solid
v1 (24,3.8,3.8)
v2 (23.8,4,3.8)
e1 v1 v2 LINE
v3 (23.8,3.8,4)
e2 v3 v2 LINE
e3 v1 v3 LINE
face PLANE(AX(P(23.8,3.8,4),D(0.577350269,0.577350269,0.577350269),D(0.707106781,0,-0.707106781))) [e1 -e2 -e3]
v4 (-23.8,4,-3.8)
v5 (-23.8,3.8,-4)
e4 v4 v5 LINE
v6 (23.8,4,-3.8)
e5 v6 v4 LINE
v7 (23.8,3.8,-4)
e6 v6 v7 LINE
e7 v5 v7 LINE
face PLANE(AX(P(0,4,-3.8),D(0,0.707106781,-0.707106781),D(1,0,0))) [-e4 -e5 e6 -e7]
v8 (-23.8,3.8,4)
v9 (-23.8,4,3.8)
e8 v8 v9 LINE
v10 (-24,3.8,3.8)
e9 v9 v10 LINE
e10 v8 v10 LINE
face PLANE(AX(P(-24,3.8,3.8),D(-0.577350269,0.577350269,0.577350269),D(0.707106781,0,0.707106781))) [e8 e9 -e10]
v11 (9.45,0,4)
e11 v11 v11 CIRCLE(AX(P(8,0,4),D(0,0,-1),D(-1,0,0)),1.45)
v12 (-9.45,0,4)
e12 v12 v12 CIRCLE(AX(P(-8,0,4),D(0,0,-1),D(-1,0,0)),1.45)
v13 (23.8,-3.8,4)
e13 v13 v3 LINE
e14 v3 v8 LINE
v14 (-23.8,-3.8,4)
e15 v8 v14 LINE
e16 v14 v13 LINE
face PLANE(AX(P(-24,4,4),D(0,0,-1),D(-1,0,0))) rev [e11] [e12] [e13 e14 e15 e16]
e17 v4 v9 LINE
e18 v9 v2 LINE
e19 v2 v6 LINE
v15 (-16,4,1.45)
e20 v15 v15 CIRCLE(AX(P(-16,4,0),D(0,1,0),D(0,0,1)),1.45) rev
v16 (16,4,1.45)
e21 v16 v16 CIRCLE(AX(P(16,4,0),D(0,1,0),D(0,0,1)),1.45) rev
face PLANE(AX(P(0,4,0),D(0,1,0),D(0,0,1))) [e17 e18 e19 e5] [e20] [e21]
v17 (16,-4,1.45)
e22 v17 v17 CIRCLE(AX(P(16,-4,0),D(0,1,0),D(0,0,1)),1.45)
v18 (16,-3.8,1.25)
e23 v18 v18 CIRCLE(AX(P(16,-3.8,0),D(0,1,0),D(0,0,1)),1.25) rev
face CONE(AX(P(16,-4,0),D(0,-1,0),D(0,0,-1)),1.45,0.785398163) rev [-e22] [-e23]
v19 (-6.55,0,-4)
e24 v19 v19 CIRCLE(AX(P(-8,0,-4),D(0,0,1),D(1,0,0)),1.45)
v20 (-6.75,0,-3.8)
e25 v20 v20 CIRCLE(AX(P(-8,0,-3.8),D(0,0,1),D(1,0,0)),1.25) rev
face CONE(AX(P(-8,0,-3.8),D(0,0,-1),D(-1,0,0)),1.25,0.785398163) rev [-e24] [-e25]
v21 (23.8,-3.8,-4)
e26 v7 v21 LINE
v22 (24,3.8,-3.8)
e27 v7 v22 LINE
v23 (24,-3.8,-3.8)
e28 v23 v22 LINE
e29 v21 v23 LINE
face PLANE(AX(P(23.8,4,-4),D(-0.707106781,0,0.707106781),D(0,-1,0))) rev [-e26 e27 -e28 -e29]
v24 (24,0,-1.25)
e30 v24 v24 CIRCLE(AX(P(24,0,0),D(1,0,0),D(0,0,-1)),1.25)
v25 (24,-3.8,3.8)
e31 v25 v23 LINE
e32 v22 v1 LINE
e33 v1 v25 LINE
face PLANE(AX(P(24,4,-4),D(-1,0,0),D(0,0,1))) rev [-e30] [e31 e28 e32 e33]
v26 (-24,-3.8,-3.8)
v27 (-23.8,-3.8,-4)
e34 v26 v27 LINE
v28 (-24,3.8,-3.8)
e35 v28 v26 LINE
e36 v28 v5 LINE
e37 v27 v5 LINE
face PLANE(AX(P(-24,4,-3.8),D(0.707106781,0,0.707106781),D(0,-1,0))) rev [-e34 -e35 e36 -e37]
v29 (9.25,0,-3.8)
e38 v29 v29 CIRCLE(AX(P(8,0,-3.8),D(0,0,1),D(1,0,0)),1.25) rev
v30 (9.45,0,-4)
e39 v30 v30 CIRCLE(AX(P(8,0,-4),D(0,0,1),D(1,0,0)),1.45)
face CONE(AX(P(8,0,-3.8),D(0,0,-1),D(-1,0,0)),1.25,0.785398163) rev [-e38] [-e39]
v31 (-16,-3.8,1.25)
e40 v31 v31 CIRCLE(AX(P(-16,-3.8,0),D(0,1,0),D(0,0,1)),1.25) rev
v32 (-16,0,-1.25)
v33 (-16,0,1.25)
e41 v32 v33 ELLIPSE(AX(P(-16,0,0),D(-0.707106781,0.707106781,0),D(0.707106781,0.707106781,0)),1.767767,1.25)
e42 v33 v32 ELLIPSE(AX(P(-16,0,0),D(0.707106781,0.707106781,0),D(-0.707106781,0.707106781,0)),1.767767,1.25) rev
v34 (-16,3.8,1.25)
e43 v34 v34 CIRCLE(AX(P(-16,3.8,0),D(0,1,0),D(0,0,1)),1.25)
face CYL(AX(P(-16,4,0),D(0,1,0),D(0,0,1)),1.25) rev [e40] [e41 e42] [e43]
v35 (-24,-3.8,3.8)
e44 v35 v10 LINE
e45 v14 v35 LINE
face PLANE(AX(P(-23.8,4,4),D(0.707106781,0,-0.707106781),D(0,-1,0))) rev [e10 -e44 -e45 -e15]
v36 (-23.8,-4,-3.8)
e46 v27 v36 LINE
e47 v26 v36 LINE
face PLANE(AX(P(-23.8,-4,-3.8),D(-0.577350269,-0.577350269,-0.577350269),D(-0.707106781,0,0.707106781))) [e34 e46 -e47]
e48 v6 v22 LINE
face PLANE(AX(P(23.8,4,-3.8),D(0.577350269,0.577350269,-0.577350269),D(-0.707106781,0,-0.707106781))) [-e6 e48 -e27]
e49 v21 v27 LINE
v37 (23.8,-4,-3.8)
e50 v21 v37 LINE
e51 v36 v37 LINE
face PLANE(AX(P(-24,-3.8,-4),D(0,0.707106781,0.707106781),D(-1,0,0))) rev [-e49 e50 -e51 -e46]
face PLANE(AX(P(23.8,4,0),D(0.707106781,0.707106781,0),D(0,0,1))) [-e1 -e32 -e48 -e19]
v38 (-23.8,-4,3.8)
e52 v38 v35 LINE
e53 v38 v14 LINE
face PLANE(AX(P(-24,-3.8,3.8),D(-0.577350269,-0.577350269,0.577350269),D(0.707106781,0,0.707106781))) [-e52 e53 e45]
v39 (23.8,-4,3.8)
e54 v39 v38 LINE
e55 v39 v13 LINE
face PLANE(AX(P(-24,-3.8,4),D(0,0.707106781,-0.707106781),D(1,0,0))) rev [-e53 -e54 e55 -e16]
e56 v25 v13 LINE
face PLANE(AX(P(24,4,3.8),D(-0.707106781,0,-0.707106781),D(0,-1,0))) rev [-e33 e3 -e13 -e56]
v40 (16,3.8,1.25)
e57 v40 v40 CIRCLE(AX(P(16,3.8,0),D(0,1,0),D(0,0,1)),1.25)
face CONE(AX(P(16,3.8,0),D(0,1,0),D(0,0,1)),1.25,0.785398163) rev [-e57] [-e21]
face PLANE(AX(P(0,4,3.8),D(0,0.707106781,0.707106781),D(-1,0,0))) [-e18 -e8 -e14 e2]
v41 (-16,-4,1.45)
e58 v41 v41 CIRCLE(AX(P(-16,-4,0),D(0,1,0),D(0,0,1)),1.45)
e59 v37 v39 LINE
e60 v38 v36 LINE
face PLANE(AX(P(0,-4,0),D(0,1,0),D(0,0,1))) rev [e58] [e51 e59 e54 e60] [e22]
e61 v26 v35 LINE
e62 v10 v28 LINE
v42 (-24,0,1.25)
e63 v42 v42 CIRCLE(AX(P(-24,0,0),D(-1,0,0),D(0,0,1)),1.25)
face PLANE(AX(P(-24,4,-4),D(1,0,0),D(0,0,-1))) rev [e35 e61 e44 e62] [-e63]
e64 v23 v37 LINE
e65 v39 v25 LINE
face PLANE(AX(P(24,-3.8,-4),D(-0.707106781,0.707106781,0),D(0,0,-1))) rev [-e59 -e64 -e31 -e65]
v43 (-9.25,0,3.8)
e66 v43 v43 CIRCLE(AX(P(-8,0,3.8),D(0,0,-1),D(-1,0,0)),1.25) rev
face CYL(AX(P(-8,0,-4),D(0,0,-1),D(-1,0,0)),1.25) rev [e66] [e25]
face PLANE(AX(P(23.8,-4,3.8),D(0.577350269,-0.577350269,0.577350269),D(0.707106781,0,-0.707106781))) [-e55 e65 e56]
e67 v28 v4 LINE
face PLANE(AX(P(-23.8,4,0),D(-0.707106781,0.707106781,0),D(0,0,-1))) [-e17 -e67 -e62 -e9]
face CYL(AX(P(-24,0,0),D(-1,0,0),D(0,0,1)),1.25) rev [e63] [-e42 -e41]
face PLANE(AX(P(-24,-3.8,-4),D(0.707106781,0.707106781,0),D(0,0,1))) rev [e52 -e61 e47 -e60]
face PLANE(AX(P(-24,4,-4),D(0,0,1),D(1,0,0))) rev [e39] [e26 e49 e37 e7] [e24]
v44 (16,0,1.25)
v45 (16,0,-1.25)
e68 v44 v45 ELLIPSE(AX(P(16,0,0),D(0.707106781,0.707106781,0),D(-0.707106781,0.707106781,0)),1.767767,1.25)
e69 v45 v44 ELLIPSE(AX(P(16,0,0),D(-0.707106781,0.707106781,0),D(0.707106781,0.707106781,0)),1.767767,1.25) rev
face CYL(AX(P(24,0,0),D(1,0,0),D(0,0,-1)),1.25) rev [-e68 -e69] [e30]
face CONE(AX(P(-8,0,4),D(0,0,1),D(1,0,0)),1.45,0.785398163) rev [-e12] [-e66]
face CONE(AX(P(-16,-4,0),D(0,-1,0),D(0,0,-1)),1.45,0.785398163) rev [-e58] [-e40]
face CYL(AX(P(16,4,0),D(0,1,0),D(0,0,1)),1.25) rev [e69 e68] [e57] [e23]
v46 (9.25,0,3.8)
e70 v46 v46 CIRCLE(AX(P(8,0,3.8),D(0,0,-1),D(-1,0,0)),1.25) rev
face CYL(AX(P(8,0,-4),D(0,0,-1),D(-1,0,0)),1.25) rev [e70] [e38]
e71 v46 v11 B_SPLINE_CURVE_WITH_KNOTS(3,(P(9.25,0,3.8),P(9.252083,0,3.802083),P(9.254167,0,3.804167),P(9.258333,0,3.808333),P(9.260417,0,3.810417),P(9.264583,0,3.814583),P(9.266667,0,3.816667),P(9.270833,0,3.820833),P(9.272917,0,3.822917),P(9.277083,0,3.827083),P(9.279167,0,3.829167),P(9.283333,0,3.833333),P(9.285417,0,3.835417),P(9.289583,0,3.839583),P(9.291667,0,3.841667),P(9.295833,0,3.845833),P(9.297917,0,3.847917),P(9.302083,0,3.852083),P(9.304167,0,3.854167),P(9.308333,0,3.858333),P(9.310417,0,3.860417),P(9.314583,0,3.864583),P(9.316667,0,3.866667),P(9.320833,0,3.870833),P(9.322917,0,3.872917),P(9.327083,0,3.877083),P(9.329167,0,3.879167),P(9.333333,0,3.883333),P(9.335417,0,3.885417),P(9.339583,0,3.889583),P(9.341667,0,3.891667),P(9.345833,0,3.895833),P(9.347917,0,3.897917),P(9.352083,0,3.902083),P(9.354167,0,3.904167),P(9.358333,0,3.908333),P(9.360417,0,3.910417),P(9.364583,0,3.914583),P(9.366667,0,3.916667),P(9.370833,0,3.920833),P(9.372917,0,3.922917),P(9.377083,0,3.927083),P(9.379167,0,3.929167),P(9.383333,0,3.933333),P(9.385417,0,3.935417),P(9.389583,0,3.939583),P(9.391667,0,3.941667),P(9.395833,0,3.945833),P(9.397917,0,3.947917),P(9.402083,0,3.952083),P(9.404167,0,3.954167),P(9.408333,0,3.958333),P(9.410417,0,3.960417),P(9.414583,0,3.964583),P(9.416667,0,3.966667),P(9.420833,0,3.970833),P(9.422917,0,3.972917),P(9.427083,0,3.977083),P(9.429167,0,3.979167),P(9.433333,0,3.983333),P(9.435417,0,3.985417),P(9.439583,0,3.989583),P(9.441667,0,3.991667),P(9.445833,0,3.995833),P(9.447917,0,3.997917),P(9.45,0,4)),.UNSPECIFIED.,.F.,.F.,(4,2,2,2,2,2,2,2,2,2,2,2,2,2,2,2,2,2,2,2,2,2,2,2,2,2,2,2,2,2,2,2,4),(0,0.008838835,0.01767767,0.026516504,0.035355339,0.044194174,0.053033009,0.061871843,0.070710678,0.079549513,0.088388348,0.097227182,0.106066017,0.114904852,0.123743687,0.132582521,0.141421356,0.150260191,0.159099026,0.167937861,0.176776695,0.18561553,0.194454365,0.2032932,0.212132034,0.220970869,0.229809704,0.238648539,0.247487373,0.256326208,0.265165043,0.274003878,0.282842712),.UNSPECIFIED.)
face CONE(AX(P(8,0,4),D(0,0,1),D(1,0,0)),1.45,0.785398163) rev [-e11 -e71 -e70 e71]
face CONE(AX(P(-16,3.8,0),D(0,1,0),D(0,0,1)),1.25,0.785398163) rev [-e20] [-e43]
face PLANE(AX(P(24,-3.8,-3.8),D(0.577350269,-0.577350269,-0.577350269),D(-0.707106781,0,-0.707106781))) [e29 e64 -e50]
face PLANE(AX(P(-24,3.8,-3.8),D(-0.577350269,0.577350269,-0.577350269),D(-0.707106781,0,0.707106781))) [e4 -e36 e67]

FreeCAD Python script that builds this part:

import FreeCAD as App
import Part
import Sketcher

doc = App.newDocument("Part")
body = doc.addObject("PartDesign::Body", "Body")

# Sketch on XZ plane
sketch1 = body.newObject("Sketcher::SketchObject", "Sketch")
sketch1.AttachmentSupport = (doc.getObject("XZ_Plane"), [""])
sketch1.MapMode = "FlatFace"
sketch1.addGeometry(Part.LineSegment(App.Vector(-24, -4, 0), App.Vector(-24, 4, 0)), False)
sketch1.addGeometry(Part.LineSegment(App.Vector(-24, 4, 0), App.Vector(24, 4, 0)), False)
sketch1.addGeometry(Part.LineSegment(App.Vector(24, 4, 0), App.Vector(24, -4, 0)), False)
sketch1.addGeometry(Part.LineSegment(App.Vector(24, -4, 0), App.Vector(-24, -4, 0)), False)
sketch1.addConstraint(Sketcher.Constraint("Coincident", 0, 2, 1, 1))
sketch1.addConstraint(Sketcher.Constraint("Coincident", 1, 2, 2, 1))
sketch1.addConstraint(Sketcher.Constraint("Coincident", 2, 2, 3, 1))
sketch1.addConstraint(Sketcher.Constraint("Coincident", 3, 2, 0, 1))
sketch1.addConstraint(Sketcher.Constraint("Vertical", 0))
sketch1.addConstraint(Sketcher.Constraint("Horizontal", 1))
sketch1.addConstraint(Sketcher.Constraint("Vertical", 2))
sketch1.addConstraint(Sketcher.Constraint("Horizontal", 3))
sketch1.addConstraint(Sketcher.Constraint("Symmetric", 0, 2, 2, 2, -1, 1))
sketch1.addConstraint(Sketcher.Constraint("DistanceX", 1, 1, 1, 2, 48.0))
sketch1.addConstraint(Sketcher.Constraint("DistanceY", 0, 1, 0, 2, 8.0))
pad1 = body.newObject("PartDesign::Pad", "Pad")
pad1.Profile = sketch1
pad1.Length = 8
pad1.Midplane = True

# Sketch on XZ plane
sketch2 = body.newObject("Sketcher::SketchObject", "Sketch001")
sketch2.AttachmentSupport = (doc.getObject("XZ_Plane"), [""])
sketch2.MapMode = "FlatFace"
sketch2.AttachmentOffset = App.Placement(App.Vector(0, 0, -4), App.Rotation())
sketch2.addGeometry(Part.Circle(App.Vector(-16, 0, 0), App.Vector(0, 0, 1), 1.2), False)
sketch2.addGeometry(Part.Circle(App.Vector(16, 0, 0), App.Vector(0, 0, 1), 1.2), False)
sketch2.addConstraint(Sketcher.Constraint("Equal", 0, 1))
sketch2.addConstraint(Sketcher.Constraint("Symmetric", 0, 3, 1, 3, -1, 1))
sketch2.addConstraint(Sketcher.Constraint("PointOnObject", 0, 3, -1))
sketch2.addConstraint(Sketcher.Constraint("Diameter", 0, 2.5))
sketch2.addConstraint(Sketcher.Constraint("DistanceX", 0, 3, -1, 1, 16.0))
doc.recompute()
hole = body.newObject("PartDesign::Hole", "Hole")
hole.Profile = sketch2
hole.ThreadType = "None"
hole.Diameter = 2.5
hole.DepthType = "ThroughAll"
hole.Reversed = True

# Sketch on XY plane
sketch3 = body.newObject("Sketcher::SketchObject", "Sketch002")
sketch3.AttachmentSupport = (doc.getObject("XY_Plane"), [""])
sketch3.MapMode = "FlatFace"
sketch3.AttachmentOffset = App.Placement(App.Vector(0, 0, -4), App.Rotation())
sketch3.addGeometry(Part.Circle(App.Vector(8, 0, 0), App.Vector(0, 0, 1), 1.2), False)
sketch3.addGeometry(Part.Circle(App.Vector(-8, 0, 0), App.Vector(0, 0, 1), 1.2), False)
sketch3.addConstraint(Sketcher.Constraint("Equal", 0, 1))
sketch3.addConstraint(Sketcher.Constraint("Symmetric", 0, 3, 1, 3, -1, 1))
sketch3.addConstraint(Sketcher.Constraint("PointOnObject", 0, 3, -1))
sketch3.addConstraint(Sketcher.Constraint("Diameter", 0, 2.5))
sketch3.addConstraint(Sketcher.Constraint("DistanceX", -1, 1, 0, 3, 8.0))
doc.recompute()
hole2 = body.newObject("PartDesign::Hole", "Hole001")
hole2.Profile = sketch3
hole2.ThreadType = "None"
hole2.Diameter = 2.5
hole2.DepthType = "ThroughAll"
hole2.Reversed = True
doc.recompute()

chamfer = body.newObject("PartDesign::Chamfer", "Chamfer")
chamfer.Base = (hole2, ["Edge1"])
chamfer.UseAllEdges = True
chamfer.Size = 0.2

# Sketch on YZ plane
sketch4 = body.newObject("Sketcher::SketchObject", "Sketch003")
sketch4.AttachmentSupport = (doc.getObject("YZ_Plane"), [""])
sketch4.MapMode = "FlatFace"
sketch4.AttachmentOffset = App.Placement(App.Vector(0, 0, -24), App.Rotation())
sketch4.addGeometry(Part.Circle(App.Vector(0, 0, 0), App.Vector(0, 0, 1), 1.2), False)
sketch4.addConstraint(Sketcher.Constraint("Coincident", 0, 3, -1, 1))
sketch4.addConstraint(Sketcher.Constraint("Diameter", 0, 2.5))
pocket1 = body.newObject("PartDesign::Pocket", "Pocket")
pocket1.Profile = sketch4
pocket1.Length = 8
pocket1.Reversed = True

# Sketch on YZ plane
sketch5 = body.newObject("Sketcher::SketchObject", "Sketch004")
sketch5.AttachmentSupport = (doc.getObject("YZ_Plane"), [""])
sketch5.MapMode = "FlatFace"
sketch5.AttachmentOffset = App.Placement(App.Vector(0, 0, 24), App.Rotation())
sketch5.addGeometry(Part.Circle(App.Vector(0, 0, 0), App.Vector(0, 0, 1), 1.2), False)
sketch5.addConstraint(Sketcher.Constraint("Coincident", 0, 3, -1, 1))
sketch5.addConstraint(Sketcher.Constraint("Diameter", 0, 2.5))
pocket2 = body.newObject("PartDesign::Pocket", "Pocket001")
pocket2.Profile = sketch5
pocket2.Type = "UpToFirst"

doc.recompute()
